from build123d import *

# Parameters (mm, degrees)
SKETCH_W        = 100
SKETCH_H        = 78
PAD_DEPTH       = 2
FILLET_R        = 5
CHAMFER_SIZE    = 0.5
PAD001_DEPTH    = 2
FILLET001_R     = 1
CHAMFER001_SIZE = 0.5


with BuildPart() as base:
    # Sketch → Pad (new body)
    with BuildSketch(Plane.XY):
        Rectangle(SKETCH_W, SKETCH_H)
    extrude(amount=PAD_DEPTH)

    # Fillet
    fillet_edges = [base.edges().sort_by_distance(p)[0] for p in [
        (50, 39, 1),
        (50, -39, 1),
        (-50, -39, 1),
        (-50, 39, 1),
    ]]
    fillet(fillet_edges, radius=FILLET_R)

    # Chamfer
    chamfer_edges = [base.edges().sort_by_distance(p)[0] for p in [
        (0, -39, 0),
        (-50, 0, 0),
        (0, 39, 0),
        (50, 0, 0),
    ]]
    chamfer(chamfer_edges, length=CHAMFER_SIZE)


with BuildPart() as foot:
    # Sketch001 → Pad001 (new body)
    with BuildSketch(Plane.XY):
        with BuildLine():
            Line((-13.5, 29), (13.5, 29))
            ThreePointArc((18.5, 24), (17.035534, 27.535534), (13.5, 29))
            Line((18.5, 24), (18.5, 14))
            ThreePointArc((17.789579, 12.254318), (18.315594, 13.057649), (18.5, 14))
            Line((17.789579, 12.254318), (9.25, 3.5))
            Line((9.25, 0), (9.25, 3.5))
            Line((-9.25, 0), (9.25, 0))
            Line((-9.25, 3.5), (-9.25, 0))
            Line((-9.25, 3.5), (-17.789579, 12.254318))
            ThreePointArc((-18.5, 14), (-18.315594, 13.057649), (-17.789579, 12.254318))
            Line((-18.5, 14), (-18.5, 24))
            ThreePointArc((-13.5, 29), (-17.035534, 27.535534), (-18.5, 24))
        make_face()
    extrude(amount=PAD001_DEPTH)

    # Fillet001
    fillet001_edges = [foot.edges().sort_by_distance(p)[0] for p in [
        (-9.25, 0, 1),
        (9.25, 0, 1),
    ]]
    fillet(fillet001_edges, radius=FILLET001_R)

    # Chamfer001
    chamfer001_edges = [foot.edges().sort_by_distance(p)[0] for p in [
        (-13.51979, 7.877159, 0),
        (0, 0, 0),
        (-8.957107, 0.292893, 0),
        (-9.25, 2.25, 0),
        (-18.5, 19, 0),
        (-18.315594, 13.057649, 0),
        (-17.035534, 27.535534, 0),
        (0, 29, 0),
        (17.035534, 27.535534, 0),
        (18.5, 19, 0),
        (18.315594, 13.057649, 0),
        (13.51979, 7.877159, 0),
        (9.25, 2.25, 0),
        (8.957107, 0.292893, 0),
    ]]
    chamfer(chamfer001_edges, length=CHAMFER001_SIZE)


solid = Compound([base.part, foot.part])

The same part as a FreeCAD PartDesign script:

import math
import FreeCAD as App
import Part
import Sketcher

V = App.Vector


def edges_at(feature, points):
    """Names of the edges that pass closest to the given points."""
    edges = feature.Shape.Edges
    near = lambda p: min(range(len(edges)), key=lambda i: edges[i].distToShape(Part.Vertex(*p))[0])
    return sorted({f"Edge{near(p) + 1}" for p in points})


def add_polygon(sketch, points):
    """Adds a closed chain of lines whose ends are joined by coincident constraints."""
    first, n = sketch.GeometryCount, len(points)
    for a, b in zip(points, points[1:] + points[:1]):
        sketch.addGeometry(Part.LineSegment(App.Vector(*a, 0), App.Vector(*b, 0)), False)
    for i in range(n):
        sketch.addConstraint(Sketcher.Constraint("Coincident", first + i, 2, first + (i + 1) % n, 1))

doc = App.newDocument("Part")
body = doc.addObject("PartDesign::Body", "Body")

# Sketch on XY plane
sketch1 = body.newObject("Sketcher::SketchObject", "Sketch")
sketch1.AttachmentSupport = (doc.getObject("XY_Plane"), [""])
sketch1.MapMode = "FlatFace"
add_polygon(sketch1, [(-50, 39), (-50, -39), (50, -39), (50, 39)])  # lines 0-3
sketch1.addConstraint([
    Sketcher.Constraint("Vertical", 0),
    Sketcher.Constraint("Horizontal", 1),
    Sketcher.Constraint("Vertical", 2),
    Sketcher.Constraint("Horizontal", 3),
    Sketcher.Constraint("Symmetric", 0, 2, 2, 2, -1, 1),
    Sketcher.Constraint("DistanceX", 1, 1, 1, 2, 100.0),
    Sketcher.Constraint("DistanceY", 0, 2, 0, 1, 78.0),
])
pad1 = body.newObject("PartDesign::Pad", "Pad")
pad1.Profile = sketch1
pad1.Length = 2
doc.recompute()

fillet = body.newObject("PartDesign::Fillet", "Fillet")
fillet.Base = (pad1, edges_at(pad1, [
    (50, 39, 1),
    (50, -39, 1),
    (-50, -39, 1),
    (-50, 39, 1),
]))
fillet.Radius = 5
doc.recompute()

chamfer = body.newObject("PartDesign::Chamfer", "Chamfer")
chamfer.Base = (fillet, edges_at(fillet, [
    (0, -39, 0),
    (-50, 0, 0),
    (0, 39, 0),
    (50, 0, 0),
]))
chamfer.Size = 0.5
body2 = doc.addObject("PartDesign::Body", "Body001")

# Sketch on XY plane
sketch2 = body2.newObject("Sketcher::SketchObject", "Sketch001")
sketch2.AttachmentSupport = (doc.getObject("XY_Plane001"), [""])
sketch2.MapMode = "FlatFace"
sketch2.addGeometry([
    Part.LineSegment(V(13.5, 29, 0), V(-13.5, 29, 0)),  # 0
    Part.ArcOfCircle(Part.Circle(V(-13.5, 24, 0), V(0, 0, 1), 5), math.radians(89.999996), math.radians(180.000004)),  # 1
    Part.LineSegment(V(-18.5, 24, 0), V(-18.5, 14, 0)),  # 2
    Part.ArcOfCircle(Part.Circle(V(-16.000004, 13.999999, 0), V(0, 0, 1), 2.499996), math.radians(179.999969), math.radians(224.288647)),  # 3
    Part.LineSegment(V(-17.789579, 12.254318, 0), V(-9.25, 3.5, 0)),  # 4
    Part.LineSegment(V(-9.25, 3.5, 0), V(-9.25, 0, 0)),  # 5
    Part.LineSegment(V(-9.25, 0, 0), V(9.25, 0, 0)),  # 6
    Part.LineSegment(V(9.25, 0, 0), V(9.25, 3.5, 0)),  # 7
    Part.LineSegment(V(9.25, 3.5, 0), V(17.789579, 12.254318, 0)),  # 8
    Part.ArcOfCircle(Part.Circle(V(16.000004, 13.999999, 0), V(0, 0, 1), 2.499996), math.radians(-44.288647), math.radians(0.000031)),  # 9
    Part.LineSegment(V(18.5, 14, 0), V(18.5, 24, 0)),  # 10
    Part.ArcOfCircle(Part.Circle(V(13.5, 24, 0), V(0, 0, 1), 5), math.radians(-0.000004), math.radians(90.000004)),  # 11
], False)
sketch2.addConstraint([
    Sketcher.Constraint("Tangent", 0, 2, 1, 1),
    Sketcher.Constraint("Tangent", 1, 2, 2, 1),
    Sketcher.Constraint("Tangent", 2, 2, 3, 1),
    Sketcher.Constraint("Tangent", 3, 2, 4, 1),
    Sketcher.Constraint("Coincident", 4, 2, 5, 1),
    Sketcher.Constraint("Coincident", 5, 2, 6, 1),
    Sketcher.Constraint("Coincident", 6, 2, 7, 1),
    Sketcher.Constraint("Coincident", 7, 2, 8, 1),
    Sketcher.Constraint("Tangent", 8, 2, 9, 1),
    Sketcher.Constraint("Tangent", 9, 2, 10, 1),
    Sketcher.Constraint("Tangent", 10, 2, 11, 1),
    Sketcher.Constraint("Tangent", 11, 2, 0, 1),
    Sketcher.Constraint("Horizontal", 0),
    Sketcher.Constraint("Vertical", 2),
    Sketcher.Constraint("Vertical", 5),
    Sketcher.Constraint("Horizontal", 6),
    Sketcher.Constraint("Vertical", 7),
    Sketcher.Constraint("Vertical", 10),
    Sketcher.Constraint("Equal", 3, 9),
    Sketcher.Constraint("Equal", 1, 11),
    Sketcher.Constraint("Symmetric", 5, 2, 6, 2, -1, 1),
    Sketcher.Constraint("Symmetric", 3, 3, 9, 3, -2),
    Sketcher.Constraint("Horizontal", 4, 2, 7, 2),
    Sketcher.Constraint("Radius", 1, 5.0),
    Sketcher.Constraint("DistanceX", 0, 2, 0, 1, 27.0),
    Sketcher.Constraint("DistanceY", 2, 2, 2, 1, 10.0),
    Sketcher.Constraint("DistanceX", 6, 1, 6, 2, 18.5),
    Sketcher.Constraint("DistanceY", 5, 2, 5, 1, 3.5),
    Sketcher.Constraint("DistanceY", -1, 1, 1, 3, 24.0),
    Sketcher.Constraint("Radius", 3, 2.499996),
])
pad2 = body2.newObject("PartDesign::Pad", "Pad001")
pad2.Profile = sketch2
pad2.Length = 2
doc.recompute()

fillet2 = body2.newObject("PartDesign::Fillet", "Fillet001")
fillet2.Base = (pad2, edges_at(pad2, [(-9.25, 0, 1), (9.25, 0, 1)]))
fillet2.Radius = 1
doc.recompute()

chamfer2 = body2.newObject("PartDesign::Chamfer", "Chamfer001")
chamfer2.Base = (fillet2, edges_at(fillet2, [
    (-13.52, 7.877, 0),
    (0, 0, 0),
    (-8.957, 0.293, 0),
    (-9.25, 2.25, 0),
    (-18.5, 19, 0),
    (-18.316, 13.058, 0),
    (-17.036, 27.536, 0),
    (0, 29, 0),
    (17.036, 27.536, 0),
    (18.5, 19, 0),
    (18.316, 13.058, 0),
    (13.52, 7.877, 0),
    (9.25, 2.25, 0),
    (8.957, 0.293, 0),
]))
chamfer2.Size = 0.5

doc.recompute()
